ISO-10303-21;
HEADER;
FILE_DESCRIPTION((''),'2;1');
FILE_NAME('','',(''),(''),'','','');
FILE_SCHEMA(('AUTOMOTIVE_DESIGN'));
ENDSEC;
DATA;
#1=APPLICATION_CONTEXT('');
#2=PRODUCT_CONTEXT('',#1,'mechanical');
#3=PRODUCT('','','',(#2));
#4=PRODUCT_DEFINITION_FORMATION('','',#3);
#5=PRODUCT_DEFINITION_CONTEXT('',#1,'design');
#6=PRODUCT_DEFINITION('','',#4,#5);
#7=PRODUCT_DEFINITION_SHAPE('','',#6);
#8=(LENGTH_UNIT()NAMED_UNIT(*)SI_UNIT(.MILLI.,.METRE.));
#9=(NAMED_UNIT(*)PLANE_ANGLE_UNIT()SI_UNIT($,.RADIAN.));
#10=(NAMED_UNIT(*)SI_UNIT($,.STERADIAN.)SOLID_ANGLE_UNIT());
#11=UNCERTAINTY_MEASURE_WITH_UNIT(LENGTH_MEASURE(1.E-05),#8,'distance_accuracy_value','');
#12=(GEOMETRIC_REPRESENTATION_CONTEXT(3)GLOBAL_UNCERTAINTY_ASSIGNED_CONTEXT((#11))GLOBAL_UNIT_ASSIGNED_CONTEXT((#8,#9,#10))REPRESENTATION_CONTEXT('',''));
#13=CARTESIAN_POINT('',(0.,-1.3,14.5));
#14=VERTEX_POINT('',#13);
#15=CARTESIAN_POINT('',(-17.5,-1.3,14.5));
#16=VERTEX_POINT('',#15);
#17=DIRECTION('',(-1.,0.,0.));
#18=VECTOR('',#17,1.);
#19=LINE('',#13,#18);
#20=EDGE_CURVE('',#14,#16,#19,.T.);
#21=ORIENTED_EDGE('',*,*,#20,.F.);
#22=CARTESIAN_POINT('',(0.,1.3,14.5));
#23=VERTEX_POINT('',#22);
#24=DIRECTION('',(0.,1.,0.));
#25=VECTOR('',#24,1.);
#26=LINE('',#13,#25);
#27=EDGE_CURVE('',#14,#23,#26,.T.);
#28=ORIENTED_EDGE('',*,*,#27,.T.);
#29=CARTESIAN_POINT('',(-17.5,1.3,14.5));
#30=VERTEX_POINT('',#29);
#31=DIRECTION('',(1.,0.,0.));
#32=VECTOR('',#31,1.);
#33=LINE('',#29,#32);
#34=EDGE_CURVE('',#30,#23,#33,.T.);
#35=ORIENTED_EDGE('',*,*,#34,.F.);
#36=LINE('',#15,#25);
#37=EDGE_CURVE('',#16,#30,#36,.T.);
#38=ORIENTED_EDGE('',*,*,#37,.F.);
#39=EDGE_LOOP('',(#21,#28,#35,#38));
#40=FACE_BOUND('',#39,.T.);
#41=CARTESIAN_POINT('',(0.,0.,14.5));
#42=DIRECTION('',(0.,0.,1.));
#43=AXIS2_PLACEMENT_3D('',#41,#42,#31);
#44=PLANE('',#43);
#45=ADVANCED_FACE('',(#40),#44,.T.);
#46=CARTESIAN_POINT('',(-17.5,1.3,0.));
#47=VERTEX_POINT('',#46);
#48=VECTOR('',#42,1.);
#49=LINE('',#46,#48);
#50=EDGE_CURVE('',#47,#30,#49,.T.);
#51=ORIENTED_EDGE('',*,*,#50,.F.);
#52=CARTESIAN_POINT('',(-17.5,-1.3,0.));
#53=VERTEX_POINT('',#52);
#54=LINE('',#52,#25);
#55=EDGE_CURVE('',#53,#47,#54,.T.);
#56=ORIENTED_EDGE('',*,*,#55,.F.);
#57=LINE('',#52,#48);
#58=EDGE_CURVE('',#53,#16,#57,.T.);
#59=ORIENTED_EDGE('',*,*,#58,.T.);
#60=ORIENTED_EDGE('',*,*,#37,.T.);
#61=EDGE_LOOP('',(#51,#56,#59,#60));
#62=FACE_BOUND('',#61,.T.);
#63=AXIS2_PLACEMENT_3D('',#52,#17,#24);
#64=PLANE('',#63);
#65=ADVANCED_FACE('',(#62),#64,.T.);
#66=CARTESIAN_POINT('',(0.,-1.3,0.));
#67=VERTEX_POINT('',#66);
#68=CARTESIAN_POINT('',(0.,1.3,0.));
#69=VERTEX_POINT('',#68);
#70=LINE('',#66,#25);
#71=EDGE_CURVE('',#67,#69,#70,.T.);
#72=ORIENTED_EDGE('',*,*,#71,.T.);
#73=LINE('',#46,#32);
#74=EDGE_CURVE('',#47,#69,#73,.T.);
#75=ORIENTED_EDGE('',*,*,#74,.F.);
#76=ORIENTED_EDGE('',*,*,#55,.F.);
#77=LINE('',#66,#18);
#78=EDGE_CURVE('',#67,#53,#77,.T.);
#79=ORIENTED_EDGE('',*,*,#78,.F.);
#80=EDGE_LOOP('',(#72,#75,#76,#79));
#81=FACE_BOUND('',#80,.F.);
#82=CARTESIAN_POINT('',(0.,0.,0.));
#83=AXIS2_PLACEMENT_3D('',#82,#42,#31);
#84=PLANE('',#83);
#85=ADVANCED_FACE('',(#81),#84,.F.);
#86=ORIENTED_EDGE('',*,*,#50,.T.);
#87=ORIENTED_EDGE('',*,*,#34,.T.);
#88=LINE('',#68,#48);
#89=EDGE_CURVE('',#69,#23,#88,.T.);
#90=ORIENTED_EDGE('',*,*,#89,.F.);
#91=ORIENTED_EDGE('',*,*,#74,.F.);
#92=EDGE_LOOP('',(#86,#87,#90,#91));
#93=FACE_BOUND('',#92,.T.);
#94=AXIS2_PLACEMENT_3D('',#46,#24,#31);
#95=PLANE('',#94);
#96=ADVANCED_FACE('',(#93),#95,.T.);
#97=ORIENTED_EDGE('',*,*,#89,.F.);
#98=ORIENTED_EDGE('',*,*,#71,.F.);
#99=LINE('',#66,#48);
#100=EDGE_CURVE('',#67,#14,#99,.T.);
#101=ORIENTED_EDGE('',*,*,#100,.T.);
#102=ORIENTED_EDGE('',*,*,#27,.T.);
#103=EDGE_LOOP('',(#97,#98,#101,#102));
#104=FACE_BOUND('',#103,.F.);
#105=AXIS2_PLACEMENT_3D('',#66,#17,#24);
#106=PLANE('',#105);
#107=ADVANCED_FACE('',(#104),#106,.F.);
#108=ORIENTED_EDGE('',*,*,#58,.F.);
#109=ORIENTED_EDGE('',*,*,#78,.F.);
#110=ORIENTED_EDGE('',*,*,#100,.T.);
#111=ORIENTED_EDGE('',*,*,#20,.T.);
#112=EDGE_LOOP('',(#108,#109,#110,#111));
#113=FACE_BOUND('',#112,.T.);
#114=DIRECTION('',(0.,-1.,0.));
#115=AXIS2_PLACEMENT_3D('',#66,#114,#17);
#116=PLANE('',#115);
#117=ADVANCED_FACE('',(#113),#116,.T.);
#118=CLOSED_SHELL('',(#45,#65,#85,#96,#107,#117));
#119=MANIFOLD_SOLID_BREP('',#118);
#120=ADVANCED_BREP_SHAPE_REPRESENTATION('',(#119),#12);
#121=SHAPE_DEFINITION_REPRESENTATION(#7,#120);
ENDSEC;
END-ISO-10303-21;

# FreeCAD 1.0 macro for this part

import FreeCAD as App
import Part
import Sketcher
from FreeCAD import Vector
Q = App.Units.Quantity


def add_polygon(sketch, points):
    """Adds a closed chain of lines whose ends are joined by coincident constraints."""
    first, n = sketch.GeometryCount, len(points)
    for a, b in zip(points, points[1:] + points[:1]):
        sketch.addGeometry(Part.LineSegment(App.Vector(*a, 0), App.Vector(*b, 0)), False)
    for i in range(n):
        sketch.addConstraint(Sketcher.Constraint("Coincident", first + i, 2, first + (i + 1) % n, 1))

doc = App.newDocument("Part")
params = doc.addObject("Spreadsheet::Sheet", "Params")
for row, (alias, value) in enumerate([
    ("sketch1_width", "17.5 mm"),
    ("sketch1_height", "2.6 mm"),
    ("pad1_length", "14.5 mm"),
], start=1):
    params.set(f"A{row}", alias)
    params.set(f"B{row}", "=" + value)
    params.setAlias(f"B{row}", alias)

body = doc.addObject("PartDesign::Body", "Body")

# Sketch on XY plane
sketch1 = doc.addObject("Sketcher::SketchObject", "Sketch")
body.addObject(sketch1)
sketch1.AttachmentSupport = (doc.XY_Plane, [""])
sketch1.MapMode = "FlatFace"
add_polygon(sketch1, [(-17.5, 1.3), (-17.5, -1.3), (0, -1.3), (0, 1.3)])  # lines 0-3
sketch1.addConstraint([
    Sketcher.Constraint("Vertical", 0),
    Sketcher.Constraint("Horizontal", 1),
    Sketcher.Constraint("Vertical", 2),
    Sketcher.Constraint("Horizontal", 3),
    Sketcher.Constraint("Symmetric", 1, 2, 2, 2, -1, 1),
    Sketcher.Constraint("DistanceX", 1, 1, 1, 2, Q("17.5 mm")),
    Sketcher.Constraint("DistanceY", 0, 2, 0, 1, Q("2.6 mm")),
])
sketch1.setExpression("Constraints[9]", "Params.sketch1_width")
sketch1.setExpression("Constraints[10]", "Params.sketch1_height")
pad1 = doc.addObject("PartDesign::Pad", "Pad")
body.addObject(pad1)
pad1.Profile = sketch1
pad1.setExpression("Length", "Params.pad1_length")

doc.recompute()
